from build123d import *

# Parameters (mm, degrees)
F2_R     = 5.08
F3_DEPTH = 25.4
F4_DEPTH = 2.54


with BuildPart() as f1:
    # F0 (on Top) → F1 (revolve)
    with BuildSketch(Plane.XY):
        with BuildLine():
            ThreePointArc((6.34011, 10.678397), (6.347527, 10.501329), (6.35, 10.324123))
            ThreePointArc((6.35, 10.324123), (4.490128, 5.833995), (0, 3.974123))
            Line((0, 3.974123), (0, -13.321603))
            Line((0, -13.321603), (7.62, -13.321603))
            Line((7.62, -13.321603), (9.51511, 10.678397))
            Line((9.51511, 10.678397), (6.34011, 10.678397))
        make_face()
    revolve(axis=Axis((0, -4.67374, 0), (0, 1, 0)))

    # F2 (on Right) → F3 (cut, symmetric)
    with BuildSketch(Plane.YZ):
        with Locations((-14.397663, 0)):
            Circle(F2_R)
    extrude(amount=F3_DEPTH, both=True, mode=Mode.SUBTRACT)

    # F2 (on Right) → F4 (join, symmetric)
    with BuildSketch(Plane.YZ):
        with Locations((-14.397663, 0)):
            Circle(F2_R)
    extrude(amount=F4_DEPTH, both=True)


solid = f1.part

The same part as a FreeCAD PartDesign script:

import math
import FreeCAD as App
import Part
import Sketcher

V = App.Vector
Q = App.Units.Quantity

doc = App.newDocument("Part")
body = doc.addObject("PartDesign::Body", "Body")

# Sketch on XY plane
sketch1 = doc.addObject("Sketcher::SketchObject", "Sketch")
body.addObject(sketch1)
sketch1.AttachmentSupport = (doc.XY_Plane, [""])
sketch1.MapMode = "FlatFace"
sketch1.addGeometry(Part.ArcOfCircle(Part.Circle(V(0, 10.32, 0), V(0, 0, 1), 6.35), math.radians(0), math.radians(3.2)), False)
sketch1.addGeometry(Part.ArcOfCircle(Part.Circle(V(0, 10.32, 0), V(0, 0, 1), 6.35), math.radians(-90), math.radians(0)), False)
sketch1.addGeometry(Part.LineSegment(V(0, 3.97, 0), V(0, -13.32, 0)), False)
sketch1.addGeometry(Part.LineSegment(V(0, -13.32, 0), V(7.62, -13.32, 0)), False)
sketch1.addGeometry(Part.LineSegment(V(7.62, -13.32, 0), V(9.52, 10.68, 0)), False)
sketch1.addGeometry(Part.LineSegment(V(9.52, 10.68, 0), V(6.34, 10.68, 0)), False)
sketch1.addConstraint(Sketcher.Constraint("Tangent", 0, 1, 1, 2))
sketch1.addConstraint(Sketcher.Constraint("Coincident", 1, 1, 2, 1))
sketch1.addConstraint(Sketcher.Constraint("Coincident", 2, 2, 3, 1))
sketch1.addConstraint(Sketcher.Constraint("Coincident", 3, 2, 4, 1))
sketch1.addConstraint(Sketcher.Constraint("Coincident", 4, 2, 5, 1))
sketch1.addConstraint(Sketcher.Constraint("Coincident", 5, 2, 0, 2))
sketch1.addConstraint(Sketcher.Constraint("Vertical", 2))
sketch1.addConstraint(Sketcher.Constraint("Horizontal", 3))
sketch1.addConstraint(Sketcher.Constraint("Horizontal", 5))
sketch1.addConstraint(Sketcher.Constraint("PointOnObject", 1, 3, -2))
sketch1.addConstraint(Sketcher.Constraint("PointOnObject", 1, 1, -2))
sketch1.addConstraint(Sketcher.Constraint("Horizontal", 1, 3, 0, 1))
sketch1.addConstraint(Sketcher.Constraint("Radius", 1, Q("0.25 in")))
sketch1.addConstraint(Sketcher.Constraint("DistanceX", 3, 1, 3, 2, Q("0.3 in")))
sketch1.addConstraint(Sketcher.Constraint("DistanceX", 5, 2, 5, 1, Q("0.125 in")))
sketch1.addConstraint(Sketcher.Constraint("Radius", 0, 6.350295))
sketch1.addConstraint(Sketcher.Constraint("DistanceY", 3, 2, 4, 2, 24.0))
sketch1.addConstraint(Sketcher.Constraint("DistanceY", 2, 2, 2, 1, 17.295726))
sketch1.addConstraint(Sketcher.Constraint("DistanceY", -1, 1, 0, 3, 10.324122))
revolution = doc.addObject("PartDesign::Revolution", "Revolution")
body.addObject(revolution)
revolution.Profile = sketch1
revolution.ReferenceAxis = (sketch1, ["V_Axis"])
revolution.Angle = 360

# Sketch on YZ plane
sketch2 = doc.addObject("Sketcher::SketchObject", "Sketch001")
body.addObject(sketch2)
sketch2.AttachmentSupport = (doc.YZ_Plane, [""])
sketch2.MapMode = "FlatFace"
sketch2.addGeometry(Part.Circle(V(-14, 0, 0), V(0, 0, 1), 5), False)
sketch2.addConstraint(Sketcher.Constraint("PointOnObject", 0, 3, -1))
sketch2.addConstraint(Sketcher.Constraint("Diameter", 0, Q("0.4 in")))
sketch2.addConstraint(Sketcher.Constraint("DistanceX", 0, 3, -1, 1, 14.397663))
pocket1 = doc.addObject("PartDesign::Pocket", "Pocket")
body.addObject(pocket1)
pocket1.Profile = sketch2
pocket1.Length = Q("2 in")
pocket1.Midplane = True

# Sketch on YZ plane
sketch3 = doc.addObject("Sketcher::SketchObject", "Sketch002")
body.addObject(sketch3)
sketch3.AttachmentSupport = (doc.YZ_Plane, [""])
sketch3.MapMode = "FlatFace"
sketch3.addGeometry(Part.Circle(V(-14, 0, 0), V(0, 0, 1), 5), False)
sketch3.addConstraint(Sketcher.Constraint("PointOnObject", 0, 3, -1))
sketch3.addConstraint(Sketcher.Constraint("Diameter", 0, Q("0.4 in")))
sketch3.addConstraint(Sketcher.Constraint("DistanceX", 0, 3, -1, 1, 14.397663))
pad1 = doc.addObject("PartDesign::Pad", "Pad")
body.addObject(pad1)
pad1.Profile = sketch3
pad1.Length = Q("0.2 in")
pad1.Midplane = True

doc.recompute()
